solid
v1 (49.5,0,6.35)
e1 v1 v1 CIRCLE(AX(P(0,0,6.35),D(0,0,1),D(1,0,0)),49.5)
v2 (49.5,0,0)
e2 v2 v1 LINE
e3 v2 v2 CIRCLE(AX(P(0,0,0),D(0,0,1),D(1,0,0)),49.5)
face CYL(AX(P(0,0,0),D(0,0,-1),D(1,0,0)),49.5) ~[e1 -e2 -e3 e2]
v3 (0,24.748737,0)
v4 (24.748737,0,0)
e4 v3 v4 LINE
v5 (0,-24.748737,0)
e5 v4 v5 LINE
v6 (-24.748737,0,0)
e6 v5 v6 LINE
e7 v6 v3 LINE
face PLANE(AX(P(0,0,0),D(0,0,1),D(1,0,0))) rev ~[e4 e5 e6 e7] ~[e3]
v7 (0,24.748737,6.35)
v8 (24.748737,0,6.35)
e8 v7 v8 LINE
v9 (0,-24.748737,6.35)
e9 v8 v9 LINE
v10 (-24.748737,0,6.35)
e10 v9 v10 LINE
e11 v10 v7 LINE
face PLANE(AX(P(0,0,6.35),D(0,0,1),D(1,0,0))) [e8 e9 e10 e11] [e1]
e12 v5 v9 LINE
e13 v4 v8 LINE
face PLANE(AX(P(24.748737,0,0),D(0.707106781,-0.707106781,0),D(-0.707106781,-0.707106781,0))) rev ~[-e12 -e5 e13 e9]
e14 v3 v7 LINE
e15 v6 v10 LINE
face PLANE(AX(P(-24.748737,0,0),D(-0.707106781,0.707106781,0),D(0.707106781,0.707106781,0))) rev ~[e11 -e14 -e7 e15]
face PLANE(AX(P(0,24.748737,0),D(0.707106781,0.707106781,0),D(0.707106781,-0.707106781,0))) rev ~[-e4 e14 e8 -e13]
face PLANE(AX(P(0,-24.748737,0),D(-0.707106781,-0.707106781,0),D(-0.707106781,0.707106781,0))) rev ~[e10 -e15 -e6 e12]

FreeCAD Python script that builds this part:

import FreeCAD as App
import Part
import Sketcher
Q = App.Units.Quantity


def add_polygon(sketch, points):
    """Adds a closed chain of lines whose ends are joined by coincident constraints."""
    first, n = sketch.GeometryCount, len(points)
    for a, b in zip(points, points[1:] + points[:1]):
        sketch.addGeometry(Part.LineSegment(App.Vector(*a, 0), App.Vector(*b, 0)), False)
    for i in range(n):
        sketch.addConstraint(Sketcher.Constraint("Coincident", first + i, 2, first + (i + 1) % n, 1))

doc = App.newDocument("Part")
body = doc.addObject("PartDesign::Body", "Body")

# Sketch on XY plane
sketch1 = body.newObject("Sketcher::SketchObject", "Sketch")
sketch1.AttachmentSupport = (doc.getObject("XY_Plane"), [""])
sketch1.MapMode = "FlatFace"
sketch1.addGeometry(Part.Circle(App.Vector(0, 0, 0), App.Vector(0, 0, 1), 50), False)  # 0
add_polygon(sketch1, [(0, -25), (-25, 0), (0, 25), (25, 0)])  # lines 1-4
sketch1.addConstraint(Sketcher.Constraint("Coincident", 0, 3, -1, 1))
sketch1.addConstraint(Sketcher.Constraint("Symmetric", 1, 2, 3, 2, -1, 1))
sketch1.addConstraint(Sketcher.Constraint("Symmetric", 2, 2, 4, 2, -1, 1))
sketch1.addConstraint(Sketcher.Constraint("PointOnObject", 1, 2, -1))
sketch1.addConstraint(Sketcher.Constraint("PointOnObject", 2, 2, -2))
sketch1.addConstraint(Sketcher.Constraint("Perpendicular", 1, 2))
sketch1.addConstraint(Sketcher.Constraint("Diameter", 0, Q("99 mm")))
sketch1.addConstraint(Sketcher.Constraint("Distance", 1, Q("35 mm")))
pad1 = body.newObject("PartDesign::Pad", "Pad")
pad1.Profile = sketch1
pad1.Length = 6.35

doc.recompute()
